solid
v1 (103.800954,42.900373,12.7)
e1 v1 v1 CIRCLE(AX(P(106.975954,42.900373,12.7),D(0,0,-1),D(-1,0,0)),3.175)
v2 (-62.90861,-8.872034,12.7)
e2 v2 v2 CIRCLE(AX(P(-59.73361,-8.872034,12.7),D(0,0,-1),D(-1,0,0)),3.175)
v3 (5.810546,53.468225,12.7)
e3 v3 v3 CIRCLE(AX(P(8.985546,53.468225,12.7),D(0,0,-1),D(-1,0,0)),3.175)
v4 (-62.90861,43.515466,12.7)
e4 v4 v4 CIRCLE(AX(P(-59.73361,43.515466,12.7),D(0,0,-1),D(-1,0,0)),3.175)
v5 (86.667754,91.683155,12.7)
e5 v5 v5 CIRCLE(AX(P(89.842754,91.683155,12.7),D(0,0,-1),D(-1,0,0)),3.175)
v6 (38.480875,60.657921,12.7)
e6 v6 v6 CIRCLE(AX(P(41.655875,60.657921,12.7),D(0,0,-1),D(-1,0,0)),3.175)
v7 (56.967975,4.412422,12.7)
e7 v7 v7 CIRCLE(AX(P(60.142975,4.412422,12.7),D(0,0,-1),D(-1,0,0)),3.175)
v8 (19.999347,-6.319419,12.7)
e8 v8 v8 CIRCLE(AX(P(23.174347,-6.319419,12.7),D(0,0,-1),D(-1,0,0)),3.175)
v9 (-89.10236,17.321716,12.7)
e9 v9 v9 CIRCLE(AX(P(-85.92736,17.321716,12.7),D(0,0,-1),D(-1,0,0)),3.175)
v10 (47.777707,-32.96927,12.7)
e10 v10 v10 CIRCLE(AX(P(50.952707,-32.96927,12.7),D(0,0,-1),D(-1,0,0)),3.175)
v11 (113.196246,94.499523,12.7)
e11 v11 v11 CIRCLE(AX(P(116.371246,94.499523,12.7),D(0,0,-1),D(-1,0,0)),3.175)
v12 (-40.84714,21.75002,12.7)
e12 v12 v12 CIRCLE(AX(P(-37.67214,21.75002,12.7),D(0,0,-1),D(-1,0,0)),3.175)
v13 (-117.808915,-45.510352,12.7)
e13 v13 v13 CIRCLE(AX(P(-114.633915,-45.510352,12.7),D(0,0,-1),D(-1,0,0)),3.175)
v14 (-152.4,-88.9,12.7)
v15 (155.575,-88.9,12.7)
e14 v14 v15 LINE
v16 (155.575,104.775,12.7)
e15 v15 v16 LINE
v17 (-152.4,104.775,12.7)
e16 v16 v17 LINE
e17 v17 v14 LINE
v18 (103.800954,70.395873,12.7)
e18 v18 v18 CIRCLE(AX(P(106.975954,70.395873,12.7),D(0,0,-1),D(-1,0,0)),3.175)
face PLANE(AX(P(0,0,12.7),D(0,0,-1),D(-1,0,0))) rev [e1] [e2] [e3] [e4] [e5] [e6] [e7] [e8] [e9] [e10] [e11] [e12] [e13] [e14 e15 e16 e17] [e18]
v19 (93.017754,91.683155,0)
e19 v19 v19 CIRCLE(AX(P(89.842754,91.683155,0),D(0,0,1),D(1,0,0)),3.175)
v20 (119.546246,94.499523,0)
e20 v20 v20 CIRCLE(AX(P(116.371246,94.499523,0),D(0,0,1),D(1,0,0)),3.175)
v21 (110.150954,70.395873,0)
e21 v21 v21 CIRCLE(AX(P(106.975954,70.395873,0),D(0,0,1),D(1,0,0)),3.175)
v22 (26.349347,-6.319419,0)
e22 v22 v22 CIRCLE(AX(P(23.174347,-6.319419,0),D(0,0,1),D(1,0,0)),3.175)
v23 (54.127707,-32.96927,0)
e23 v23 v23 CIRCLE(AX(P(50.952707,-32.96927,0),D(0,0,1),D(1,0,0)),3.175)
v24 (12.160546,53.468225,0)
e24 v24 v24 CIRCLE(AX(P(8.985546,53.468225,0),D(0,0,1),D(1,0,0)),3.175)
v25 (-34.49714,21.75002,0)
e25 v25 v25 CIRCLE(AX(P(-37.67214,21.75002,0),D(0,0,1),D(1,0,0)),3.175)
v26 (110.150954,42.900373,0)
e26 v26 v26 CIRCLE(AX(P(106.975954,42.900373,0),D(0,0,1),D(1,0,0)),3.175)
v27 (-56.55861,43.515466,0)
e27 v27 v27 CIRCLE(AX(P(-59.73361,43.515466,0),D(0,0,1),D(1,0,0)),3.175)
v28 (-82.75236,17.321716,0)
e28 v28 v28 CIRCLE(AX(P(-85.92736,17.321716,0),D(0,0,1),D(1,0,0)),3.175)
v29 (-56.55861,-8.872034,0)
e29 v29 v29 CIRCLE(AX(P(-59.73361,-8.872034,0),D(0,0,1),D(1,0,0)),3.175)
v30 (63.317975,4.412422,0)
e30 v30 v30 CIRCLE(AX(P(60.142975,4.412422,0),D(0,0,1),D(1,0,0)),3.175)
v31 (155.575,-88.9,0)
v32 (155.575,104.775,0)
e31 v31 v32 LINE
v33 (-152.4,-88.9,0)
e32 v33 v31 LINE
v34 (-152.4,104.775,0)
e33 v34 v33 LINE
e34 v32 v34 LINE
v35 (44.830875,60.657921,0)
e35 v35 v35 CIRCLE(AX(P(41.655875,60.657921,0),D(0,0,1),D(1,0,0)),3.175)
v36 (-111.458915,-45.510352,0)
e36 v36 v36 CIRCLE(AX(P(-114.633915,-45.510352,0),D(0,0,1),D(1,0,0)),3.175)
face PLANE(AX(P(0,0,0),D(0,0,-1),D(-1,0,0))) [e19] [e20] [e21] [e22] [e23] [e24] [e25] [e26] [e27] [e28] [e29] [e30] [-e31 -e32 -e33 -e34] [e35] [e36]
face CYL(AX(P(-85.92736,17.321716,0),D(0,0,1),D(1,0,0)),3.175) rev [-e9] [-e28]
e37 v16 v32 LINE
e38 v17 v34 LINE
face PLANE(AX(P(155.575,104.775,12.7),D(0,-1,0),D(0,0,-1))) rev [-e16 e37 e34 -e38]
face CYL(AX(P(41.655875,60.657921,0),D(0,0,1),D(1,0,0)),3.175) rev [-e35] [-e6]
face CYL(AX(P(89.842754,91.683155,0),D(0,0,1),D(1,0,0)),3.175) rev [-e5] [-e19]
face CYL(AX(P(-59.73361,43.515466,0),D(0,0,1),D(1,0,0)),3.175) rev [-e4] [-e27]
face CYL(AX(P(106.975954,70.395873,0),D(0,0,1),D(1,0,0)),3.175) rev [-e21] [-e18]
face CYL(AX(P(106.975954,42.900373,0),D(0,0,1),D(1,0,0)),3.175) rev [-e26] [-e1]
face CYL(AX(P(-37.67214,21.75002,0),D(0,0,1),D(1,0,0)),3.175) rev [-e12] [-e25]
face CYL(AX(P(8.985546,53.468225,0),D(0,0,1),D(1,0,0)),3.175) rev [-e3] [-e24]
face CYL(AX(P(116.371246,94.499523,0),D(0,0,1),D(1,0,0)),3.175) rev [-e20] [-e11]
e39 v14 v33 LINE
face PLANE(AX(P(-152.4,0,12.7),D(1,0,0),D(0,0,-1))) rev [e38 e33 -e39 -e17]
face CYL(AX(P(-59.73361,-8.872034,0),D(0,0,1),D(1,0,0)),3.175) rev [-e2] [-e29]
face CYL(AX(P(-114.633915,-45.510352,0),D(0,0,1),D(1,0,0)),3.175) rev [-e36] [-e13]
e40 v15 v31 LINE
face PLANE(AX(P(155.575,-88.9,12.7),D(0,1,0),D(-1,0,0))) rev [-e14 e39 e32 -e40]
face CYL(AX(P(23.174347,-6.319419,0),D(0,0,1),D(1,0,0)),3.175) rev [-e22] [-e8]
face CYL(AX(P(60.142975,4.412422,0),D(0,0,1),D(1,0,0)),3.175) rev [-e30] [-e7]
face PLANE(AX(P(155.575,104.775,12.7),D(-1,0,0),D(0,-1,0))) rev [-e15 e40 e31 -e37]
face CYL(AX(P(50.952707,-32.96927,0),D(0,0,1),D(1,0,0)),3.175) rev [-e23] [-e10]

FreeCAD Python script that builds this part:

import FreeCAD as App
import Part
import Sketcher
from FreeCAD import Vector
Q = App.Units.Quantity

doc = App.newDocument("Part")
body = doc.addObject("PartDesign::Body", "Body")

sketch1 = doc.addObject("Sketcher::SketchObject", "Sketch")
body.addObject(sketch1)
sketch1.AttachmentSupport = (doc.XY_Plane, [""])
sketch1.MapMode = "FlatFace"
sketch1.addGeometry(Part.LineSegment(Vector(-152, -89, 0), Vector(156, -89, 0)), False)
sketch1.addGeometry(Part.LineSegment(Vector(156, -89, 0), Vector(156, 105, 0)), False)
sketch1.addGeometry(Part.LineSegment(Vector(156, 105, 0), Vector(-152, 105, 0)), False)
sketch1.addGeometry(Part.LineSegment(Vector(-152, 105, 0), Vector(-152, -89, 0)), False)
sketch1.addConstraint(Sketcher.Constraint("Coincident", 0, 2, 1, 1))
sketch1.addConstraint(Sketcher.Constraint("Coincident", 1, 2, 2, 1))
sketch1.addConstraint(Sketcher.Constraint("Coincident", 2, 2, 3, 1))
sketch1.addConstraint(Sketcher.Constraint("Coincident", 3, 2, 0, 1))
sketch1.addConstraint(Sketcher.Constraint("Horizontal", 0))
sketch1.addConstraint(Sketcher.Constraint("Vertical", 1))
sketch1.addConstraint(Sketcher.Constraint("Horizontal", 2))
sketch1.addConstraint(Sketcher.Constraint("Vertical", 3))
sketch1.addConstraint(Sketcher.Constraint("DistanceX", 2, 2, -1, 1, Q("6 in")))
sketch1.addConstraint(Sketcher.Constraint("DistanceY", 0, 2, -1, 1, Q("3.5 in")))
sketch1.addConstraint(Sketcher.Constraint("DistanceX", 0, 1, 0, 2, Q("12.125 in")))
sketch1.addConstraint(Sketcher.Constraint("DistanceY", 1, 1, 1, 2, Q("7.625 in")))
pad1 = doc.addObject("PartDesign::Pad", "Pad")
body.addObject(pad1)
pad1.Profile = sketch1
pad1.Length = Q("0.5 in")

sketch2 = doc.addObject("Sketcher::SketchObject", "Sketch001")
body.addObject(sketch2)
sketch2.AttachmentSupport = (doc.XY_Plane, [""])
sketch2.MapMode = "FlatFace"
sketch2.AttachmentOffset = App.Placement(Vector(0, 0, 0.5 * 25.4), App.Rotation())
sketch2.addGeometry(Part.Circle(Vector(107, 70.4, 0), Vector(0, 0, 1), 3.2), False)
sketch2.addGeometry(Part.Circle(Vector(107, 42.9, 0), Vector(0, 0, 1), 3.2), False)
sketch2.addGeometry(Part.Circle(Vector(-59.7, 43.5, 0), Vector(0, 0, 1), 3.2), False)
sketch2.addGeometry(Part.Circle(Vector(-59.7, -8.9, 0), Vector(0, 0, 1), 3.2), False)
sketch2.addGeometry(Part.Circle(Vector(-85.9, 17.3, 0), Vector(0, 0, 1), 3.2), False)
sketch2.addGeometry(Part.Circle(Vector(-114.6, -45.5, 0), Vector(0, 0, 1), 3.2), False)
sketch2.addGeometry(Part.Circle(Vector(9, 53.5, 0), Vector(0, 0, 1), 3.2), False)
sketch2.addGeometry(Part.Circle(Vector(41.7, 60.7, 0), Vector(0, 0, 1), 3.2), False)
sketch2.addGeometry(Part.Circle(Vector(60.1, 4.4, 0), Vector(0, 0, 1), 3.2), False)
sketch2.addGeometry(Part.Circle(Vector(51, -33, 0), Vector(0, 0, 1), 3.2), False)
sketch2.addGeometry(Part.Circle(Vector(23.2, -6.3, 0), Vector(0, 0, 1), 3.2), False)
sketch2.addGeometry(Part.Circle(Vector(-37.7, 21.8, 0), Vector(0, 0, 1), 3.2), False)
sketch2.addGeometry(Part.Circle(Vector(89.8, 91.7, 0), Vector(0, 0, 1), 3.2), False)
sketch2.addGeometry(Part.Circle(Vector(116.4, 94.5, 0), Vector(0, 0, 1), 3.2), False)
sketch2.addConstraint(Sketcher.Constraint("Equal", 0, 1))
sketch2.addConstraint(Sketcher.Constraint("Equal", 1, 2))
sketch2.addConstraint(Sketcher.Constraint("Equal", 2, 3))
sketch2.addConstraint(Sketcher.Constraint("Equal", 3, 4))
sketch2.addConstraint(Sketcher.Constraint("Equal", 4, 5))
sketch2.addConstraint(Sketcher.Constraint("Equal", 5, 6))
sketch2.addConstraint(Sketcher.Constraint("Equal", 6, 7))
sketch2.addConstraint(Sketcher.Constraint("Equal", 7, 8))
sketch2.addConstraint(Sketcher.Constraint("Equal", 8, 9))
sketch2.addConstraint(Sketcher.Constraint("Equal", 9, 10))
sketch2.addConstraint(Sketcher.Constraint("Equal", 10, 11))
sketch2.addConstraint(Sketcher.Constraint("Equal", 11, 12))
sketch2.addConstraint(Sketcher.Constraint("Equal", 12, 13))
sketch2.addConstraint(Sketcher.Constraint("Vertical", 0, 3, 1, 3))
sketch2.addConstraint(Sketcher.Constraint("Vertical", 2, 3, 3, 3))
sketch2.addConstraint(Sketcher.Constraint("Diameter", 0, Q("0.25 in")))
sketch2.addConstraint(Sketcher.Constraint("DistanceY", 3, 3, 2, 3, Q("2.0625 in")))
sketch2.addConstraint(Sketcher.Constraint("DistanceX", 4, 3, 2, 3, Q("1.03125 in")))
sketch2.addConstraint(Sketcher.Constraint("DistanceY", 4, 3, 2, 3, Q("1.03125 in")))
sketch2.addConstraint(Sketcher.Constraint("DistanceY", -1, 1, 11, 3, Q("0.8563 in")))
sketch2.addConstraint(Sketcher.Constraint("DistanceY", 1, 3, 0, 3, Q("1.0825 in")))
sketch2.addConstraint(Sketcher.Constraint("DistanceX", 7, 3, 8, 3, Q("18.4871 mm")))
sketch2.addConstraint(Sketcher.Constraint("DistanceY", 8, 3, 7, 3, Q("56.245499 mm")))
sketch2.addConstraint(Sketcher.Constraint("DistanceX", 6, 3, 10, 3, Q("14.188801 mm")))
sketch2.addConstraint(Sketcher.Constraint("DistanceX", 12, 3, 0, 3, Q("17.1332 mm")))
sketch2.addConstraint(Sketcher.Constraint("DistanceY", 8, 3, 13, 3, Q("90.087101 mm")))
sketch2.addConstraint(Sketcher.Constraint("DistanceX", 2, 3, -1, 1, Q("59.73361 mm")))
sketch2.addConstraint(Sketcher.Constraint("DistanceY", 5, 3, -1, 1, Q("45.510352 mm")))
sketch2.addConstraint(Sketcher.Constraint("DistanceY", -1, 1, 7, 3, Q("60.657921 mm")))
sketch2.addConstraint(Sketcher.Constraint("DistanceY", 9, 3, -1, 1, Q("32.96927 mm")))
sketch2.addConstraint(Sketcher.Constraint("DistanceY", 10, 3, -1, 1, Q("6.319419 mm")))
sketch2.addConstraint(Sketcher.Constraint("DistanceX", 11, 3, -1, 1, Q("37.67214 mm")))
sketch2.addConstraint(Sketcher.Constraint("DistanceY", 5, 3, 3, 3, Q("36.638318 mm")))
sketch2.addConstraint(Sketcher.Constraint("DistanceX", 5, 3, 1, 3, Q("221.609869 mm")))
sketch2.addConstraint(Sketcher.Constraint("DistanceY", 2, 3, 6, 3, Q("9.952759 mm")))
sketch2.addConstraint(Sketcher.Constraint("DistanceX", 6, 3, 1, 3, Q("97.990409 mm")))
sketch2.addConstraint(Sketcher.Constraint("DistanceX", 6, 3, 7, 3, Q("32.670329 mm")))
sketch2.addConstraint(Sketcher.Constraint("DistanceY", 8, 3, 1, 3, Q("38.487951 mm")))
sketch2.addConstraint(Sketcher.Constraint("DistanceX", 6, 3, 9, 3, Q("41.967162 mm")))
sketch2.addConstraint(Sketcher.Constraint("DistanceY", 0, 3, 12, 3, Q("21.287282 mm")))
sketch2.addConstraint(Sketcher.Constraint("DistanceX", 0, 3, 13, 3, Q("9.395292 mm")))
sketch2.addConstraint(Sketcher.Constraint("DistanceX", -1, 1, 0, 3, Q("106.975954 mm")))
pocket1 = doc.addObject("PartDesign::Pocket", "Pocket")
body.addObject(pocket1)
pocket1.Profile = sketch2
pocket1.Type = "ThroughAll"
pocket1.Midplane = True

doc.recompute()
